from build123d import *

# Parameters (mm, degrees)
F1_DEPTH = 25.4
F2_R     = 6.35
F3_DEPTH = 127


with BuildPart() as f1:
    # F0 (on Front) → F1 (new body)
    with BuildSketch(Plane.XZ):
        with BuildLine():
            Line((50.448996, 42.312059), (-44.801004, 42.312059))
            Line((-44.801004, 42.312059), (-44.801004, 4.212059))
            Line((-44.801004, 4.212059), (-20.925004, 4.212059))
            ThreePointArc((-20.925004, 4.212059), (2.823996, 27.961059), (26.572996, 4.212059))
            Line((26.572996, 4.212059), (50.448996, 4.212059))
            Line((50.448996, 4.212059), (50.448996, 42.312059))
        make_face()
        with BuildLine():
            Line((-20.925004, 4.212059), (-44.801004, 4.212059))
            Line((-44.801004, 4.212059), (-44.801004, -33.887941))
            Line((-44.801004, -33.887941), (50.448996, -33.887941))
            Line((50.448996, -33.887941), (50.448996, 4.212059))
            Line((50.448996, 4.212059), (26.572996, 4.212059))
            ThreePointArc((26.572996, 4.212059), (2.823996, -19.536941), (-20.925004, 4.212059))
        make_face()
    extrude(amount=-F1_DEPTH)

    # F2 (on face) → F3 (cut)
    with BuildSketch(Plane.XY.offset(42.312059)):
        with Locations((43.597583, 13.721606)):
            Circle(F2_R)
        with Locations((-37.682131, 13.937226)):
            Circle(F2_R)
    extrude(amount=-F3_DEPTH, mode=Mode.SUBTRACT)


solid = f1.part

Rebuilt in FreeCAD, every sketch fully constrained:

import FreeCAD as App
import Part
import Sketcher

V = App.Vector
Q = App.Units.Quantity

doc = App.newDocument("Part")
body = doc.addObject("PartDesign::Body", "Body")

# Sketch on XZ plane
sketch1 = doc.addObject("Sketcher::SketchObject", "Sketch")
body.addObject(sketch1)
sketch1.AttachmentSupport = (doc.XZ_Plane, [""])
sketch1.MapMode = "FlatFace"
sketch1.addGeometry(Part.LineSegment(V(50, 42, 0), V(-45, 42, 0)), False)
sketch1.addGeometry(Part.LineSegment(V(-45, 42, 0), V(-45, -34, 0)), False)
sketch1.addGeometry(Part.LineSegment(V(-45, -34, 0), V(50, -34, 0)), False)
sketch1.addGeometry(Part.LineSegment(V(50, -34, 0), V(50, 42, 0)), False)
sketch1.addGeometry(Part.Circle(V(3, 4, 0), V(0, 0, 1), 24), False)
sketch1.addConstraint(Sketcher.Constraint("Coincident", 0, 2, 1, 1))
sketch1.addConstraint(Sketcher.Constraint("Coincident", 1, 2, 2, 1))
sketch1.addConstraint(Sketcher.Constraint("Coincident", 2, 2, 3, 1))
sketch1.addConstraint(Sketcher.Constraint("Coincident", 3, 2, 0, 1))
sketch1.addConstraint(Sketcher.Constraint("Horizontal", 0))
sketch1.addConstraint(Sketcher.Constraint("Vertical", 1))
sketch1.addConstraint(Sketcher.Constraint("Horizontal", 2))
sketch1.addConstraint(Sketcher.Constraint("Vertical", 3))
sketch1.addConstraint(Sketcher.Constraint("Diameter", 4, Q("1.87 in")))
sketch1.addConstraint(Sketcher.Constraint("DistanceY", 1, 2, 1, 1, Q("3 in")))
sketch1.addConstraint(Sketcher.Constraint("DistanceX", 0, 2, 0, 1, Q("3.75 in")))
sketch1.addConstraint(Sketcher.Constraint("DistanceY", 4, 3, 0, 2, Q("1.5 in")))
sketch1.addConstraint(Sketcher.Constraint("DistanceX", 0, 2, 4, 3, Q("1.875 in")))
sketch1.addConstraint(Sketcher.Constraint("DistanceY", -1, 1, 4, 3, 4.212059))
sketch1.addConstraint(Sketcher.Constraint("DistanceX", -1, 1, 4, 3, 2.823996))
pad1 = doc.addObject("PartDesign::Pad", "Pad")
body.addObject(pad1)
pad1.Profile = sketch1
pad1.Length = Q("1 in")
pad1.Reversed = True

# Sketch on XY plane
sketch2 = doc.addObject("Sketcher::SketchObject", "Sketch001")
body.addObject(sketch2)
sketch2.AttachmentSupport = (doc.XY_Plane, [""])
sketch2.MapMode = "FlatFace"
sketch2.AttachmentOffset = App.Placement(V(0, 0, 42.312059), App.Rotation())
sketch2.addGeometry(Part.Circle(V(44, 14, 0), V(0, 0, 1), 6), False)
sketch2.addGeometry(Part.Circle(V(-38, 14, 0), V(0, 0, 1), 6), False)
sketch2.addConstraint(Sketcher.Constraint("Equal", 0, 1))
sketch2.addConstraint(Sketcher.Constraint("Diameter", 0, Q("0.5 in")))
sketch2.addConstraint(Sketcher.Constraint("DistanceX", 1, 3, -1, 1, 37.682131))
sketch2.addConstraint(Sketcher.Constraint("DistanceY", 0, 3, 1, 3, 0.21562))
sketch2.addConstraint(Sketcher.Constraint("DistanceX", -1, 1, 0, 3, 43.597583))
sketch2.addConstraint(Sketcher.Constraint("DistanceY", -1, 1, 0, 3, 13.721606))
pocket1 = doc.addObject("PartDesign::Pocket", "Pocket")
body.addObject(pocket1)
pocket1.Profile = sketch2
pocket1.Length = Q("5 in")

doc.recompute()
